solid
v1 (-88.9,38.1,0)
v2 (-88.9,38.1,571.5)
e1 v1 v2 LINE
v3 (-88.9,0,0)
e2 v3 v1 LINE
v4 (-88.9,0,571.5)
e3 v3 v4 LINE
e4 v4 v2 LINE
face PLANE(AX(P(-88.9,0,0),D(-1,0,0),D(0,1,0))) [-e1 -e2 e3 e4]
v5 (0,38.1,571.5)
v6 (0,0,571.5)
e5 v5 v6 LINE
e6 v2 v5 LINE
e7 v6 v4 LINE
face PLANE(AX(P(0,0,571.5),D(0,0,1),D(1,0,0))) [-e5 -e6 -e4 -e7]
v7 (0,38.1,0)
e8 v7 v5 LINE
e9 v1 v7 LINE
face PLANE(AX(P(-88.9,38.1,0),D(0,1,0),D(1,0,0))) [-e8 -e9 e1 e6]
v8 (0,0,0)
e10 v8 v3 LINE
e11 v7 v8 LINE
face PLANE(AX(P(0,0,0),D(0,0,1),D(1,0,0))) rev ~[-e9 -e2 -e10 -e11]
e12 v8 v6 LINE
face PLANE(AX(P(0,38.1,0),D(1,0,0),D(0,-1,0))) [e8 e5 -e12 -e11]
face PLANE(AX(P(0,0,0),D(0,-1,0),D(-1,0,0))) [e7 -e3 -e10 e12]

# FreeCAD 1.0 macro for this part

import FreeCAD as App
import Part
import Sketcher
from FreeCAD import Vector
Q = App.Units.Quantity

doc = App.newDocument("Part")
body = doc.addObject("PartDesign::Body", "Body")

# Sketch on XY plane
sketch1 = body.newObject("Sketcher::SketchObject", "Sketch")
sketch1.AttachmentSupport = (doc.getObject("XY_Plane"), [""])
sketch1.MapMode = "FlatFace"
sketch1.addGeometry([
    Part.LineSegment(Vector(-89, 0, 0), Vector(0, 0, 0)),
    Part.LineSegment(Vector(0, 0, 0), Vector(0, 38, 0)),
    Part.LineSegment(Vector(0, 38, 0), Vector(-89, 38, 0)),
    Part.LineSegment(Vector(-89, 38, 0), Vector(-89, 0, 0)),
], False)
sketch1.addConstraint([
    Sketcher.Constraint("Coincident", 0, 2, 1, 1),
    Sketcher.Constraint("Coincident", 1, 2, 2, 1),
    Sketcher.Constraint("Coincident", 2, 2, 3, 1),
    Sketcher.Constraint("Coincident", 3, 2, 0, 1),
    Sketcher.Constraint("Horizontal", 0),
    Sketcher.Constraint("Vertical", 1),
    Sketcher.Constraint("Horizontal", 2),
    Sketcher.Constraint("Vertical", 3),
    Sketcher.Constraint("Coincident", 0, 2, -1, 1),
    Sketcher.Constraint("DistanceX", 0, 1, 0, 2, Q("3.5 in")),
    Sketcher.Constraint("DistanceY", 1, 1, 1, 2, Q("1.5 in")),
])
pad1 = body.newObject("PartDesign::Pad", "Pad")
pad1.Profile = sketch1
pad1.Length = Q("22.5 in")

doc.recompute()
